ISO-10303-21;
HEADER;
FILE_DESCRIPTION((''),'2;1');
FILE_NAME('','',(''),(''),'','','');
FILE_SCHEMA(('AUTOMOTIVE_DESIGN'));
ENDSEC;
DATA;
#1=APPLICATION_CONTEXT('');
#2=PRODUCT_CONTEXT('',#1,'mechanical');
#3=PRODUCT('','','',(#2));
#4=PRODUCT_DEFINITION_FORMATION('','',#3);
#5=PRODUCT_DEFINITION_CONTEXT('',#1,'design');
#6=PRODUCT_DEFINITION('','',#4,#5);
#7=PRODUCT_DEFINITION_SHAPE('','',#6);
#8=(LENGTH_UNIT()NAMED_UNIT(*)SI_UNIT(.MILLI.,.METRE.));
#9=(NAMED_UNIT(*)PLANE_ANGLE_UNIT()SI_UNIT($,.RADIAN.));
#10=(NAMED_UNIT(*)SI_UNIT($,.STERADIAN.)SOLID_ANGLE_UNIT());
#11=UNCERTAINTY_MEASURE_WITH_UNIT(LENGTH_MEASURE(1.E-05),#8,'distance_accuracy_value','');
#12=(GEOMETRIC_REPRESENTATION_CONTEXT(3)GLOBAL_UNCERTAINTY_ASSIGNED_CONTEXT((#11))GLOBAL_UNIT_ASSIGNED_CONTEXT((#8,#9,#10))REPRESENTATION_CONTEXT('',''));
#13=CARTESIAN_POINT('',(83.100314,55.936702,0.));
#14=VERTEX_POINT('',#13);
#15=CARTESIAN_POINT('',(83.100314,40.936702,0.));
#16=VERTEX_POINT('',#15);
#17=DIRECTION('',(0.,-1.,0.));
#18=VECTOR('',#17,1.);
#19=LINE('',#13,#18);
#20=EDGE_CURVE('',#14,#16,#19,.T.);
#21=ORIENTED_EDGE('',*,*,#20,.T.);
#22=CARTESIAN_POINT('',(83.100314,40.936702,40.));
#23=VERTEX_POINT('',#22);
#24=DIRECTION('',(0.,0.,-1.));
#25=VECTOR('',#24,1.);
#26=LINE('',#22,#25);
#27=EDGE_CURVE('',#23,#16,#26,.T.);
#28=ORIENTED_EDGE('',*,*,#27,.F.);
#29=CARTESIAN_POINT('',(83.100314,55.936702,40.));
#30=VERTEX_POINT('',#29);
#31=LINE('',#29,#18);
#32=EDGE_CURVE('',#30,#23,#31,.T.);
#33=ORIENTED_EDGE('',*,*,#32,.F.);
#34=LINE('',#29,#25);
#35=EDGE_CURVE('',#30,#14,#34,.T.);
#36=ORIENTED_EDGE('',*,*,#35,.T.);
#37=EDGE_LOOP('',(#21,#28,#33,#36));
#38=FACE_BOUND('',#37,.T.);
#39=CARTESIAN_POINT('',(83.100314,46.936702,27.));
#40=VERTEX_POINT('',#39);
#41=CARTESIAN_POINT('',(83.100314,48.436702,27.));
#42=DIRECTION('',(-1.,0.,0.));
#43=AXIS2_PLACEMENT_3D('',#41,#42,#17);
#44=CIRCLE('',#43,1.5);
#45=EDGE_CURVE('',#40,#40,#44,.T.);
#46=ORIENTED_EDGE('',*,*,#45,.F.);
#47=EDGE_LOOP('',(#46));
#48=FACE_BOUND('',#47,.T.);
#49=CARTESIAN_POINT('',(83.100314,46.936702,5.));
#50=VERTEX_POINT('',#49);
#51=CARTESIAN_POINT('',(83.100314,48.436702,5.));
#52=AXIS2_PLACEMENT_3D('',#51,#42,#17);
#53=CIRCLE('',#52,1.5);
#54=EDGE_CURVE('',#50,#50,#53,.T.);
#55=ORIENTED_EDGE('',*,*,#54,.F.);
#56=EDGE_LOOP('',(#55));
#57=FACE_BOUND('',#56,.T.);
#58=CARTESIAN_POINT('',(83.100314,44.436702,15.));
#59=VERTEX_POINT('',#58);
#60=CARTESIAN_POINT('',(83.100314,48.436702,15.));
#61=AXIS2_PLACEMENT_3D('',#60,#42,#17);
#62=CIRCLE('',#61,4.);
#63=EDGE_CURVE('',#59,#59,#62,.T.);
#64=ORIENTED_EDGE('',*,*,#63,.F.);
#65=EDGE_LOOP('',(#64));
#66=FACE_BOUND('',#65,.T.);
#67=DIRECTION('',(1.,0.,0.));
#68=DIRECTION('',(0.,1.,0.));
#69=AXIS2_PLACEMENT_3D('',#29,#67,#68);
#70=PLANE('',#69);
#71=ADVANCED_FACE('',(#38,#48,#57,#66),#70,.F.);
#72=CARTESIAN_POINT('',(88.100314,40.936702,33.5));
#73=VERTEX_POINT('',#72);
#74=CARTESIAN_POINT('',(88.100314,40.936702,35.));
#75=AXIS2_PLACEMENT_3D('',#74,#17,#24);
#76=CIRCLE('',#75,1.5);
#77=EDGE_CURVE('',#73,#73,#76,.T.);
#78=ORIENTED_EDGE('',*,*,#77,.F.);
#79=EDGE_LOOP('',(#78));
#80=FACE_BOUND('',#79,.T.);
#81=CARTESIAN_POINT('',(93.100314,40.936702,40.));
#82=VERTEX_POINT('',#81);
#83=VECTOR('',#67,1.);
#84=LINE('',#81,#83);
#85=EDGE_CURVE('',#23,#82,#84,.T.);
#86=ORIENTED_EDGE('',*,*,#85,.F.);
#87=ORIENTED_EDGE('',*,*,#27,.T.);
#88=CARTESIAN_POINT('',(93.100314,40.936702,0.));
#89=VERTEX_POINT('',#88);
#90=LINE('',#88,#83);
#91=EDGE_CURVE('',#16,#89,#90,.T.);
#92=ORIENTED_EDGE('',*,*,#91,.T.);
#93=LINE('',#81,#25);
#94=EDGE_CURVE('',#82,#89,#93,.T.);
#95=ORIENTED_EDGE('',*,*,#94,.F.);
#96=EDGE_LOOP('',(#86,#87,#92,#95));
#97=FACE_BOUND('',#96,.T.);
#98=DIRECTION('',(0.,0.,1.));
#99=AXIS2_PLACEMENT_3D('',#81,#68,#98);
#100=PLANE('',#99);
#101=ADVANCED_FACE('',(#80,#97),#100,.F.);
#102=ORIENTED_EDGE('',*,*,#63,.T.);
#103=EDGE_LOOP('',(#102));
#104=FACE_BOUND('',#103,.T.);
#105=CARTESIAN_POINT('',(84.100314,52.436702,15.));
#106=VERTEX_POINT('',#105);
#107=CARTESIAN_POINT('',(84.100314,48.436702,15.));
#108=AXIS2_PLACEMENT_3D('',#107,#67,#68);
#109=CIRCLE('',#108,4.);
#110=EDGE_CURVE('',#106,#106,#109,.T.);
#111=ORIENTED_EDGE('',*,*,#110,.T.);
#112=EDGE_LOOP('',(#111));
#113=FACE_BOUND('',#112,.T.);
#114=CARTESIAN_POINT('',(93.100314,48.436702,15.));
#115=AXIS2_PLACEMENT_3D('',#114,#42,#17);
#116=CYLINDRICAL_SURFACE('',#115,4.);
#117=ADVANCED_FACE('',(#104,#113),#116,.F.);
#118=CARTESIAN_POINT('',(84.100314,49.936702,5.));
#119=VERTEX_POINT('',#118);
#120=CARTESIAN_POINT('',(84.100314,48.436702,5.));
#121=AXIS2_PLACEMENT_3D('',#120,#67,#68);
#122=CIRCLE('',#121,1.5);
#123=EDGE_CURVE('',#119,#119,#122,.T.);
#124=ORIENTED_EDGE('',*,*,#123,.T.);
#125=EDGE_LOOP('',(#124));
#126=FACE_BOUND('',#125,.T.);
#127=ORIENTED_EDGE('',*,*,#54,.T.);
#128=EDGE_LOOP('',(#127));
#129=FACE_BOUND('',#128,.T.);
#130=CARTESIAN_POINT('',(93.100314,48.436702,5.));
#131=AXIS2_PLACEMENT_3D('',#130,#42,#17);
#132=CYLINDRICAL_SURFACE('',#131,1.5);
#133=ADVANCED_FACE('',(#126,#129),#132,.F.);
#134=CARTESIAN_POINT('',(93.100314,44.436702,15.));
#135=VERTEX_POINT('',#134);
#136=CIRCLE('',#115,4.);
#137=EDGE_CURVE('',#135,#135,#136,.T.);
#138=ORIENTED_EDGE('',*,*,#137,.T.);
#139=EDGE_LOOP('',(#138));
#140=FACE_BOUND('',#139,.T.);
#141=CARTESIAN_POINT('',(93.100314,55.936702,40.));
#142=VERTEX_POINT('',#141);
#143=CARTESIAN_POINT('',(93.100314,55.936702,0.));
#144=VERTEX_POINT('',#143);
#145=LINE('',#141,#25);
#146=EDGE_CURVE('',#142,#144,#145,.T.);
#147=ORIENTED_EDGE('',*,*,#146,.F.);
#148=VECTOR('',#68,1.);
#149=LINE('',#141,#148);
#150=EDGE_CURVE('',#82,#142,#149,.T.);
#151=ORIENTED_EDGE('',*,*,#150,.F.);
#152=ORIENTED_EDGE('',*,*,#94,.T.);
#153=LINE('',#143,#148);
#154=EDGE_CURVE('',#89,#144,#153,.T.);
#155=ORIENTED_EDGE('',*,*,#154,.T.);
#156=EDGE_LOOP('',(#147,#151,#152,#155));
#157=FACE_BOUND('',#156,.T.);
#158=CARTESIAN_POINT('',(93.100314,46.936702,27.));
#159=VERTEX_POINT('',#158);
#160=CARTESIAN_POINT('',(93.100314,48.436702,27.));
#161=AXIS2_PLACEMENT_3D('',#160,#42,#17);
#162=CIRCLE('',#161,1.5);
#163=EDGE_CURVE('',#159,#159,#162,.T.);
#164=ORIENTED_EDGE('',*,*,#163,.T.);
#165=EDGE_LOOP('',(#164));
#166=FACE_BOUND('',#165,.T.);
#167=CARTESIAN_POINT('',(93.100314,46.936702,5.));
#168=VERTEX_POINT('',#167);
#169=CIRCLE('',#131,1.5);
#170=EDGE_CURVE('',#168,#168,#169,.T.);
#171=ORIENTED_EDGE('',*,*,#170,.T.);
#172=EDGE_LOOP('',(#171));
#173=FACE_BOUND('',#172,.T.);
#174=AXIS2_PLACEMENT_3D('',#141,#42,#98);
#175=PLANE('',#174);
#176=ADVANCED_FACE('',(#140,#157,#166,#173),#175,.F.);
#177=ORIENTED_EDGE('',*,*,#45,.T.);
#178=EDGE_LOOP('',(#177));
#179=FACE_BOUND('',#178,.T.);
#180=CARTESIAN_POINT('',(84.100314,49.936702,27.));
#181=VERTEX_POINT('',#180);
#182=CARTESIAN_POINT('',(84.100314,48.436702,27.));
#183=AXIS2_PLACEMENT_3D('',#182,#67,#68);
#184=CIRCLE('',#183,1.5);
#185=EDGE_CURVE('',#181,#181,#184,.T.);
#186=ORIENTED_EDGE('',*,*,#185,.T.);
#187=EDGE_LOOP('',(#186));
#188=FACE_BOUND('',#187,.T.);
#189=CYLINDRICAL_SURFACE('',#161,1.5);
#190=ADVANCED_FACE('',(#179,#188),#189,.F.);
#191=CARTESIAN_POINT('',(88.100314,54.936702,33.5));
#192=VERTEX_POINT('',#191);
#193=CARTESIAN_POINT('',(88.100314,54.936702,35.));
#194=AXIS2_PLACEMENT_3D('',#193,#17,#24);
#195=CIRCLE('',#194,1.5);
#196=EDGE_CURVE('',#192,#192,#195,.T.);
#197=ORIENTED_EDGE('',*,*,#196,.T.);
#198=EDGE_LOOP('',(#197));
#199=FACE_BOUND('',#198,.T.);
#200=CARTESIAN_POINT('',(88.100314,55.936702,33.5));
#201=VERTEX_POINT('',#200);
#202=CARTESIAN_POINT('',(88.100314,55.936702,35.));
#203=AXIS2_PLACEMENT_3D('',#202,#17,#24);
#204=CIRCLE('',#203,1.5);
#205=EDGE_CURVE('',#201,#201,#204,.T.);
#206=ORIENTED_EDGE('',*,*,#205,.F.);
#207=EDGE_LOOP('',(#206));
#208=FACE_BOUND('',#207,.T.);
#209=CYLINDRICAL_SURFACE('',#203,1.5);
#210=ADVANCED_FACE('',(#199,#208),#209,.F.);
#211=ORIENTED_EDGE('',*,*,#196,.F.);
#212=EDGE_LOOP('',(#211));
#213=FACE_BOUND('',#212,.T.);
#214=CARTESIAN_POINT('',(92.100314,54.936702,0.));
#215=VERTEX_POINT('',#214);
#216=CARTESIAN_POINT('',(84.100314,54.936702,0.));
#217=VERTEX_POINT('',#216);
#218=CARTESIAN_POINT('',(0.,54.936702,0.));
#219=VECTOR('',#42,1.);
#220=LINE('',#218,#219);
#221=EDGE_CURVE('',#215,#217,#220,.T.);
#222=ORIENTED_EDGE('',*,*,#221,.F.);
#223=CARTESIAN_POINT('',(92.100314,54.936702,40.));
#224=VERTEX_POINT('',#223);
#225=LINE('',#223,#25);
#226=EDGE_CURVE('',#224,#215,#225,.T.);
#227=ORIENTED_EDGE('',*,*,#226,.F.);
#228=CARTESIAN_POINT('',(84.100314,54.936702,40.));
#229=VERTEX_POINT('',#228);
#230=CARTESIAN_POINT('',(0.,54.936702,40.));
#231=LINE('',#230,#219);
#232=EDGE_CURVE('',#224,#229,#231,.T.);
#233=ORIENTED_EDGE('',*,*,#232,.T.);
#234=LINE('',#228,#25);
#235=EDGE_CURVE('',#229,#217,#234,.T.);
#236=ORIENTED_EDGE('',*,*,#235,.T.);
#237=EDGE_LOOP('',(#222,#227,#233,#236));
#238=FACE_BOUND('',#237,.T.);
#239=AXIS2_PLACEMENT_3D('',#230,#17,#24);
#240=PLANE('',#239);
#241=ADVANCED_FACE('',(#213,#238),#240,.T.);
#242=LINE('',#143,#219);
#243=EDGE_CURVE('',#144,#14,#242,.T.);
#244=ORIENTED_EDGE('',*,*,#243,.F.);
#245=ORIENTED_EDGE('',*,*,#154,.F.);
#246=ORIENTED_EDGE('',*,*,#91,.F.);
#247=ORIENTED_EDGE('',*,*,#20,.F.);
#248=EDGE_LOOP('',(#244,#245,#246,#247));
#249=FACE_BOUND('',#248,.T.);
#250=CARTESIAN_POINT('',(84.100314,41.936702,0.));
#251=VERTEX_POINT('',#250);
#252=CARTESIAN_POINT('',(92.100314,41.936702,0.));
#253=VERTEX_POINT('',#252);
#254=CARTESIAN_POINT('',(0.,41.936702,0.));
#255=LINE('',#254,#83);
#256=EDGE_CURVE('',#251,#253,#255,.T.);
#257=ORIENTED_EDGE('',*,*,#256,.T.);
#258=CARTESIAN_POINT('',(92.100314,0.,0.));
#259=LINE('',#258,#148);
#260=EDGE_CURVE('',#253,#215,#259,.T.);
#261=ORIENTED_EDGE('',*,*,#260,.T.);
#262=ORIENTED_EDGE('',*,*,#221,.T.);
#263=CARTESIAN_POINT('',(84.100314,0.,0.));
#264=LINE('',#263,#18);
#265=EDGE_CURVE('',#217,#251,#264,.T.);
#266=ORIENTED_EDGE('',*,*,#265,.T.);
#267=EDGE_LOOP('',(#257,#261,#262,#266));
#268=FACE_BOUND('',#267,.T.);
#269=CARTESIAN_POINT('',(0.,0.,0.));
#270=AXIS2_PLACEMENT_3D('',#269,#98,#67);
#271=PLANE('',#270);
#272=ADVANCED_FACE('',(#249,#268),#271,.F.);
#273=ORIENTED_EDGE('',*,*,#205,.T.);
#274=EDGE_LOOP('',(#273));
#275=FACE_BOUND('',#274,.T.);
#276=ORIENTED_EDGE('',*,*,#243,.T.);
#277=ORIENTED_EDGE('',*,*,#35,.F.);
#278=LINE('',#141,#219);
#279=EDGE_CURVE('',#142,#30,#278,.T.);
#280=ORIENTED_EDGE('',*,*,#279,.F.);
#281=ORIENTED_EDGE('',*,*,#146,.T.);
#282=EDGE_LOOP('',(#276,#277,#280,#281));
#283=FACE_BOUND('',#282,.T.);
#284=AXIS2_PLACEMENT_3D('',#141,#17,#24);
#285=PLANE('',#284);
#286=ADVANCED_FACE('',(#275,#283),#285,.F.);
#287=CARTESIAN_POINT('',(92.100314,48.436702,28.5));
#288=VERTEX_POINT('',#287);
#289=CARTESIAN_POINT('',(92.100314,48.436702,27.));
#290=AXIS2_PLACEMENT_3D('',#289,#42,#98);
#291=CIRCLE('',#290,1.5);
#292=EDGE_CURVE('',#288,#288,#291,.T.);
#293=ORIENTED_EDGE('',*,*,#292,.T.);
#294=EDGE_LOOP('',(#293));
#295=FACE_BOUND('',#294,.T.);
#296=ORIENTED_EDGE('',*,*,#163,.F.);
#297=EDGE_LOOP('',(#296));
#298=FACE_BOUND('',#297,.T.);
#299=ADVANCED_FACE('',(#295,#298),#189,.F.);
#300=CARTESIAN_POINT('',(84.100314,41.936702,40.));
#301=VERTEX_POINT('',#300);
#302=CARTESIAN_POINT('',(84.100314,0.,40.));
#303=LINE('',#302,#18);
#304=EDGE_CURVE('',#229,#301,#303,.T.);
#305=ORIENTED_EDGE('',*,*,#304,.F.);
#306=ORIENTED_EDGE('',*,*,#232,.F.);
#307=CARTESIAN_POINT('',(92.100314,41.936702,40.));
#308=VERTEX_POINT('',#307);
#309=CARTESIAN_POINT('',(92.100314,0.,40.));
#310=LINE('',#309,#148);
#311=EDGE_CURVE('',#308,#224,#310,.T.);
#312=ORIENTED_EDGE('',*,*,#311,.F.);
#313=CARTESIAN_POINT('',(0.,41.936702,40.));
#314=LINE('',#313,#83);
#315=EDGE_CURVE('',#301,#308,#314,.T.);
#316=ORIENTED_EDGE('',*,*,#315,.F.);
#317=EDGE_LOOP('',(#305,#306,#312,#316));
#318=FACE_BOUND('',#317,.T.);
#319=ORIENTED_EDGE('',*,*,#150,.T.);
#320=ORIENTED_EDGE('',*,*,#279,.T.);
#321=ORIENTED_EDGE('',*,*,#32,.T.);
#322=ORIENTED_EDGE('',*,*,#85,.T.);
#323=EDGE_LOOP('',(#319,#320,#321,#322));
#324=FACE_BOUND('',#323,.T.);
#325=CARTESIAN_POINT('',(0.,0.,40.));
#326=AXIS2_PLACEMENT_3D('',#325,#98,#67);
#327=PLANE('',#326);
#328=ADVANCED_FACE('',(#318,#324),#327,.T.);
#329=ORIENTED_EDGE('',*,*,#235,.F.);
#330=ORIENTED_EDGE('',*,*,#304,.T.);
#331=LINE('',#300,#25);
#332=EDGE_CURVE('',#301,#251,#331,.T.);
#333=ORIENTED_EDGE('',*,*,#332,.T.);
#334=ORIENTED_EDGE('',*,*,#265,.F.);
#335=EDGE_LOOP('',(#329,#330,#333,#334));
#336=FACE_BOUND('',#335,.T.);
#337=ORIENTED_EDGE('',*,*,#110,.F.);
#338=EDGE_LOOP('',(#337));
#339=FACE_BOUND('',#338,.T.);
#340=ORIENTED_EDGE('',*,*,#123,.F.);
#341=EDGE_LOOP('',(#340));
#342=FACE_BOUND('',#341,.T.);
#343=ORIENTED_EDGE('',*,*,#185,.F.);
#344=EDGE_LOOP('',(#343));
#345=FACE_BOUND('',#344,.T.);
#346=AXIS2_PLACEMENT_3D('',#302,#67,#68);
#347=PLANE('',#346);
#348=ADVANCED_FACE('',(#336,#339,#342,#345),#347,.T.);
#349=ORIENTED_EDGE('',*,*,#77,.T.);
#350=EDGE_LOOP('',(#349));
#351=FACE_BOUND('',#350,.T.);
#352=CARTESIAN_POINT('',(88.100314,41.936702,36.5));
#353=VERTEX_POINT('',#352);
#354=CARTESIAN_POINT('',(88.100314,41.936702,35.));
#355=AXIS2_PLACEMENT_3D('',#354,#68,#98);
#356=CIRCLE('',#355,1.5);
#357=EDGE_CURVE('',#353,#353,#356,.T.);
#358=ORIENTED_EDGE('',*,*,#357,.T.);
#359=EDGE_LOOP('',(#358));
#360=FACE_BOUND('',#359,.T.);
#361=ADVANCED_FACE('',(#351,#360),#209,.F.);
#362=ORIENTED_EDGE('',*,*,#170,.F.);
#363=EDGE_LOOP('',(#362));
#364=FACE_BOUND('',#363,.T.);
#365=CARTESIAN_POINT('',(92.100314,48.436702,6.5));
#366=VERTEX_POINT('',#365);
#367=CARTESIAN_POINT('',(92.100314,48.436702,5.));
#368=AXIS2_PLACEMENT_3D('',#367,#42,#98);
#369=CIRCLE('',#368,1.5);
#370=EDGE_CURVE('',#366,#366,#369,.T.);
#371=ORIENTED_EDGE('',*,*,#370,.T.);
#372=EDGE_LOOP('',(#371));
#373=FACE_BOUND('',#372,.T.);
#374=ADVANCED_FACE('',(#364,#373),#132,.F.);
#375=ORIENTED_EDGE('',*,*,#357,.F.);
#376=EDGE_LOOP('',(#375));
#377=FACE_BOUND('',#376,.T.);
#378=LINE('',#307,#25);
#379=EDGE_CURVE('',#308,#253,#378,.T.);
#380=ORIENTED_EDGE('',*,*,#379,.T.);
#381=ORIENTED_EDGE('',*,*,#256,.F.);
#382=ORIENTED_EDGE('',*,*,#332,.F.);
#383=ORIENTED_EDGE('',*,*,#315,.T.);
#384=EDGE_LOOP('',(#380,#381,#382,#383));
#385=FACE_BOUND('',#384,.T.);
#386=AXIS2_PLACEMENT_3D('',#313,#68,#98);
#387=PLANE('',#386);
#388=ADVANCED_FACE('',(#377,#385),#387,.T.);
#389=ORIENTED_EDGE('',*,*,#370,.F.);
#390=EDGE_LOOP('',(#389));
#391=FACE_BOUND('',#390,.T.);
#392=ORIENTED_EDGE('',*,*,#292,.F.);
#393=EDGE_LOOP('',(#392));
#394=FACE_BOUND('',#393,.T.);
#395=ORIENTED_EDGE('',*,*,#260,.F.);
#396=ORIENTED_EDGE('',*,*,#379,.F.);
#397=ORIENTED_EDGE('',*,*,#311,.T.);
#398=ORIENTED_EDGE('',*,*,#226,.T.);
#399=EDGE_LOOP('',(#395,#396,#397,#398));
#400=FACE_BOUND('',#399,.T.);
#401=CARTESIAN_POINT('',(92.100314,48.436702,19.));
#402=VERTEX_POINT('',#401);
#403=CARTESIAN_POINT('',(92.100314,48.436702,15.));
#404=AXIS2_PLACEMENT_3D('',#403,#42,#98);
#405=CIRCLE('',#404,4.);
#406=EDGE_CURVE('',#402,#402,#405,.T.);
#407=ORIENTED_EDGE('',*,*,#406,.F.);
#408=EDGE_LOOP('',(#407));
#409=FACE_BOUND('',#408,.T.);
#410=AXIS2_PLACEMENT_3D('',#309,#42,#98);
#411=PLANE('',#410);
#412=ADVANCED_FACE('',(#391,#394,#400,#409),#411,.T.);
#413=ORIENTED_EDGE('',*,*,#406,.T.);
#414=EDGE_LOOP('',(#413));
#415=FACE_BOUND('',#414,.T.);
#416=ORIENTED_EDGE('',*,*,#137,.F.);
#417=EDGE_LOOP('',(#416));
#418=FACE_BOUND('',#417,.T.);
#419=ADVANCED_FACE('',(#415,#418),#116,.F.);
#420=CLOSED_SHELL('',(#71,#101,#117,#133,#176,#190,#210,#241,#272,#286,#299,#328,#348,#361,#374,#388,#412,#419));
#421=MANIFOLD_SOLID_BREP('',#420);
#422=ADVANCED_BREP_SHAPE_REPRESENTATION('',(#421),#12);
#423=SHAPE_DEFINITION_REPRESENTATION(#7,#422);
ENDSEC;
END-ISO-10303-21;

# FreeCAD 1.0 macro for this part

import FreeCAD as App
import Part
import Sketcher

V = App.Vector


def add_polygon(sketch, points):
    """Adds a closed chain of lines whose ends are joined by coincident constraints."""
    first, n = sketch.GeometryCount, len(points)
    for a, b in zip(points, points[1:] + points[:1]):
        sketch.addGeometry(Part.LineSegment(App.Vector(*a, 0), App.Vector(*b, 0)), False)
    for i in range(n):
        sketch.addConstraint(Sketcher.Constraint("Coincident", first + i, 2, first + (i + 1) % n, 1))

doc = App.newDocument("Part")
params = doc.addObject("Spreadsheet::Sheet", "Params")
for row, (alias, value) in enumerate([
    ("sketch1_width", "10 mm"),
    ("sketch1_width2", "8 mm"),
    ("sketch1_height", "15 mm"),
    ("sketch1_height2", "13 mm"),
    ("pad1_length", "40 mm"),
    ("sketch2_diameter", "3 mm"),
    ("sketch2_diameter2", "8 mm"),
    ("sketch3_diameter", "3 mm"),
], start=1):
    params.set(f"A{row}", alias)
    params.set(f"B{row}", "=" + value)
    params.setAlias(f"B{row}", alias)

body = doc.addObject("PartDesign::Body", "Body")

# Sketch on XY plane
sketch1 = doc.addObject("Sketcher::SketchObject", "Sketch")
body.addObject(sketch1)
sketch1.AttachmentSupport = (doc.XY_Plane, [""])
sketch1.MapMode = "FlatFace"
add_polygon(sketch1, [(83, 56), (83, 41), (93, 41), (93, 56)])  # lines 0-3
add_polygon(sketch1, [(92, 42), (84, 42), (84, 55), (92, 55)])  # lines 4-7
sketch1.addConstraint([
    Sketcher.Constraint("Vertical", 0),
    Sketcher.Constraint("Horizontal", 1),
    Sketcher.Constraint("Vertical", 2),
    Sketcher.Constraint("Horizontal", 3),
    Sketcher.Constraint("Horizontal", 4),
    Sketcher.Constraint("Vertical", 5),
    Sketcher.Constraint("Horizontal", 6),
    Sketcher.Constraint("Vertical", 7),
    Sketcher.Constraint("DistanceX", 1, 1, 1, 2, 10.0),
    Sketcher.Constraint("DistanceX", 4, 2, 4, 1, 8.0),
    Sketcher.Constraint("DistanceY", 0, 2, 0, 1, 15.0),
    Sketcher.Constraint("DistanceY", 5, 1, 5, 2, 13.0),
    Sketcher.Constraint("DistanceX", 0, 2, 4, 2, 1.0),
    Sketcher.Constraint("DistanceY", 0, 2, 4, 2, 1.0),
    Sketcher.Constraint("DistanceX", -1, 1, 0, 2, 83.100314),
    Sketcher.Constraint("DistanceY", -1, 1, 0, 2, 40.936702),
])
sketch1.setExpression("Constraints[16]", "Params.sketch1_width")
sketch1.setExpression("Constraints[17]", "Params.sketch1_width2")
sketch1.setExpression("Constraints[18]", "Params.sketch1_height")
sketch1.setExpression("Constraints[19]", "Params.sketch1_height2")
pad1 = doc.addObject("PartDesign::Pad", "Pad")
body.addObject(pad1)
pad1.Profile = sketch1
pad1.setExpression("Length", "Params.pad1_length")

# Sketch on YZ plane
sketch2 = doc.addObject("Sketcher::SketchObject", "Sketch001")
body.addObject(sketch2)
sketch2.AttachmentSupport = (doc.YZ_Plane, [""])
sketch2.MapMode = "FlatFace"
sketch2.AttachmentOffset = App.Placement(V(0, 0, 83.100314), App.Rotation())
sketch2.addGeometry([
    Part.Circle(V(48.4, 5, 0), V(0, 0, 1), 1.5),
    Part.Circle(V(48.4, 27, 0), V(0, 0, 1), 1.5),
    Part.Circle(V(48.4, 15, 0), V(0, 0, 1), 4),
], False)
sketch2.addConstraint([
    Sketcher.Constraint("Equal", 0, 1),
    Sketcher.Constraint("Vertical", 0, 3, 1, 3),
    Sketcher.Constraint("Vertical", 1, 3, 2, 3),
    Sketcher.Constraint("Diameter", 0, 3.0),
    Sketcher.Constraint("Diameter", 2, 8.0),
    Sketcher.Constraint("DistanceY", -1, 1, 0, 3, 5.0),
    Sketcher.Constraint("DistanceY", -1, 1, 1, 3, 27.0),
    Sketcher.Constraint("DistanceY", -1, 1, 2, 3, 15.0),
    Sketcher.Constraint("DistanceX", -1, 1, 0, 3, 48.436702),
])
sketch2.setExpression("Constraints[3]", "Params.sketch2_diameter")
sketch2.setExpression("Constraints[4]", "Params.sketch2_diameter2")
pocket1 = doc.addObject("PartDesign::Pocket", "Pocket")
body.addObject(pocket1)
pocket1.Profile = sketch2
pocket1.Type = "ThroughAll"
pocket1.Reversed = True

# Sketch on XZ plane
sketch3 = doc.addObject("Sketcher::SketchObject", "Sketch002")
body.addObject(sketch3)
sketch3.AttachmentSupport = (doc.XZ_Plane, [""])
sketch3.MapMode = "FlatFace"
sketch3.AttachmentOffset = App.Placement(V(0, 0, -40.936702), App.Rotation())
sketch3.addGeometry(Part.Circle(V(88.1, 35, 0), V(0, 0, 1), 1.5), False)
sketch3.addConstraint([
    Sketcher.Constraint("Diameter", 0, 3.0),
    Sketcher.Constraint("DistanceY", -1, 1, 0, 3, 35.0),
    Sketcher.Constraint("DistanceX", -1, 1, 0, 3, 88.100314),
])
sketch3.setExpression("Constraints[0]", "Params.sketch3_diameter")
pocket2 = doc.addObject("PartDesign::Pocket", "Pocket001")
body.addObject(pocket2)
pocket2.Profile = sketch3
pocket2.Type = "ThroughAll"

doc.recompute()
